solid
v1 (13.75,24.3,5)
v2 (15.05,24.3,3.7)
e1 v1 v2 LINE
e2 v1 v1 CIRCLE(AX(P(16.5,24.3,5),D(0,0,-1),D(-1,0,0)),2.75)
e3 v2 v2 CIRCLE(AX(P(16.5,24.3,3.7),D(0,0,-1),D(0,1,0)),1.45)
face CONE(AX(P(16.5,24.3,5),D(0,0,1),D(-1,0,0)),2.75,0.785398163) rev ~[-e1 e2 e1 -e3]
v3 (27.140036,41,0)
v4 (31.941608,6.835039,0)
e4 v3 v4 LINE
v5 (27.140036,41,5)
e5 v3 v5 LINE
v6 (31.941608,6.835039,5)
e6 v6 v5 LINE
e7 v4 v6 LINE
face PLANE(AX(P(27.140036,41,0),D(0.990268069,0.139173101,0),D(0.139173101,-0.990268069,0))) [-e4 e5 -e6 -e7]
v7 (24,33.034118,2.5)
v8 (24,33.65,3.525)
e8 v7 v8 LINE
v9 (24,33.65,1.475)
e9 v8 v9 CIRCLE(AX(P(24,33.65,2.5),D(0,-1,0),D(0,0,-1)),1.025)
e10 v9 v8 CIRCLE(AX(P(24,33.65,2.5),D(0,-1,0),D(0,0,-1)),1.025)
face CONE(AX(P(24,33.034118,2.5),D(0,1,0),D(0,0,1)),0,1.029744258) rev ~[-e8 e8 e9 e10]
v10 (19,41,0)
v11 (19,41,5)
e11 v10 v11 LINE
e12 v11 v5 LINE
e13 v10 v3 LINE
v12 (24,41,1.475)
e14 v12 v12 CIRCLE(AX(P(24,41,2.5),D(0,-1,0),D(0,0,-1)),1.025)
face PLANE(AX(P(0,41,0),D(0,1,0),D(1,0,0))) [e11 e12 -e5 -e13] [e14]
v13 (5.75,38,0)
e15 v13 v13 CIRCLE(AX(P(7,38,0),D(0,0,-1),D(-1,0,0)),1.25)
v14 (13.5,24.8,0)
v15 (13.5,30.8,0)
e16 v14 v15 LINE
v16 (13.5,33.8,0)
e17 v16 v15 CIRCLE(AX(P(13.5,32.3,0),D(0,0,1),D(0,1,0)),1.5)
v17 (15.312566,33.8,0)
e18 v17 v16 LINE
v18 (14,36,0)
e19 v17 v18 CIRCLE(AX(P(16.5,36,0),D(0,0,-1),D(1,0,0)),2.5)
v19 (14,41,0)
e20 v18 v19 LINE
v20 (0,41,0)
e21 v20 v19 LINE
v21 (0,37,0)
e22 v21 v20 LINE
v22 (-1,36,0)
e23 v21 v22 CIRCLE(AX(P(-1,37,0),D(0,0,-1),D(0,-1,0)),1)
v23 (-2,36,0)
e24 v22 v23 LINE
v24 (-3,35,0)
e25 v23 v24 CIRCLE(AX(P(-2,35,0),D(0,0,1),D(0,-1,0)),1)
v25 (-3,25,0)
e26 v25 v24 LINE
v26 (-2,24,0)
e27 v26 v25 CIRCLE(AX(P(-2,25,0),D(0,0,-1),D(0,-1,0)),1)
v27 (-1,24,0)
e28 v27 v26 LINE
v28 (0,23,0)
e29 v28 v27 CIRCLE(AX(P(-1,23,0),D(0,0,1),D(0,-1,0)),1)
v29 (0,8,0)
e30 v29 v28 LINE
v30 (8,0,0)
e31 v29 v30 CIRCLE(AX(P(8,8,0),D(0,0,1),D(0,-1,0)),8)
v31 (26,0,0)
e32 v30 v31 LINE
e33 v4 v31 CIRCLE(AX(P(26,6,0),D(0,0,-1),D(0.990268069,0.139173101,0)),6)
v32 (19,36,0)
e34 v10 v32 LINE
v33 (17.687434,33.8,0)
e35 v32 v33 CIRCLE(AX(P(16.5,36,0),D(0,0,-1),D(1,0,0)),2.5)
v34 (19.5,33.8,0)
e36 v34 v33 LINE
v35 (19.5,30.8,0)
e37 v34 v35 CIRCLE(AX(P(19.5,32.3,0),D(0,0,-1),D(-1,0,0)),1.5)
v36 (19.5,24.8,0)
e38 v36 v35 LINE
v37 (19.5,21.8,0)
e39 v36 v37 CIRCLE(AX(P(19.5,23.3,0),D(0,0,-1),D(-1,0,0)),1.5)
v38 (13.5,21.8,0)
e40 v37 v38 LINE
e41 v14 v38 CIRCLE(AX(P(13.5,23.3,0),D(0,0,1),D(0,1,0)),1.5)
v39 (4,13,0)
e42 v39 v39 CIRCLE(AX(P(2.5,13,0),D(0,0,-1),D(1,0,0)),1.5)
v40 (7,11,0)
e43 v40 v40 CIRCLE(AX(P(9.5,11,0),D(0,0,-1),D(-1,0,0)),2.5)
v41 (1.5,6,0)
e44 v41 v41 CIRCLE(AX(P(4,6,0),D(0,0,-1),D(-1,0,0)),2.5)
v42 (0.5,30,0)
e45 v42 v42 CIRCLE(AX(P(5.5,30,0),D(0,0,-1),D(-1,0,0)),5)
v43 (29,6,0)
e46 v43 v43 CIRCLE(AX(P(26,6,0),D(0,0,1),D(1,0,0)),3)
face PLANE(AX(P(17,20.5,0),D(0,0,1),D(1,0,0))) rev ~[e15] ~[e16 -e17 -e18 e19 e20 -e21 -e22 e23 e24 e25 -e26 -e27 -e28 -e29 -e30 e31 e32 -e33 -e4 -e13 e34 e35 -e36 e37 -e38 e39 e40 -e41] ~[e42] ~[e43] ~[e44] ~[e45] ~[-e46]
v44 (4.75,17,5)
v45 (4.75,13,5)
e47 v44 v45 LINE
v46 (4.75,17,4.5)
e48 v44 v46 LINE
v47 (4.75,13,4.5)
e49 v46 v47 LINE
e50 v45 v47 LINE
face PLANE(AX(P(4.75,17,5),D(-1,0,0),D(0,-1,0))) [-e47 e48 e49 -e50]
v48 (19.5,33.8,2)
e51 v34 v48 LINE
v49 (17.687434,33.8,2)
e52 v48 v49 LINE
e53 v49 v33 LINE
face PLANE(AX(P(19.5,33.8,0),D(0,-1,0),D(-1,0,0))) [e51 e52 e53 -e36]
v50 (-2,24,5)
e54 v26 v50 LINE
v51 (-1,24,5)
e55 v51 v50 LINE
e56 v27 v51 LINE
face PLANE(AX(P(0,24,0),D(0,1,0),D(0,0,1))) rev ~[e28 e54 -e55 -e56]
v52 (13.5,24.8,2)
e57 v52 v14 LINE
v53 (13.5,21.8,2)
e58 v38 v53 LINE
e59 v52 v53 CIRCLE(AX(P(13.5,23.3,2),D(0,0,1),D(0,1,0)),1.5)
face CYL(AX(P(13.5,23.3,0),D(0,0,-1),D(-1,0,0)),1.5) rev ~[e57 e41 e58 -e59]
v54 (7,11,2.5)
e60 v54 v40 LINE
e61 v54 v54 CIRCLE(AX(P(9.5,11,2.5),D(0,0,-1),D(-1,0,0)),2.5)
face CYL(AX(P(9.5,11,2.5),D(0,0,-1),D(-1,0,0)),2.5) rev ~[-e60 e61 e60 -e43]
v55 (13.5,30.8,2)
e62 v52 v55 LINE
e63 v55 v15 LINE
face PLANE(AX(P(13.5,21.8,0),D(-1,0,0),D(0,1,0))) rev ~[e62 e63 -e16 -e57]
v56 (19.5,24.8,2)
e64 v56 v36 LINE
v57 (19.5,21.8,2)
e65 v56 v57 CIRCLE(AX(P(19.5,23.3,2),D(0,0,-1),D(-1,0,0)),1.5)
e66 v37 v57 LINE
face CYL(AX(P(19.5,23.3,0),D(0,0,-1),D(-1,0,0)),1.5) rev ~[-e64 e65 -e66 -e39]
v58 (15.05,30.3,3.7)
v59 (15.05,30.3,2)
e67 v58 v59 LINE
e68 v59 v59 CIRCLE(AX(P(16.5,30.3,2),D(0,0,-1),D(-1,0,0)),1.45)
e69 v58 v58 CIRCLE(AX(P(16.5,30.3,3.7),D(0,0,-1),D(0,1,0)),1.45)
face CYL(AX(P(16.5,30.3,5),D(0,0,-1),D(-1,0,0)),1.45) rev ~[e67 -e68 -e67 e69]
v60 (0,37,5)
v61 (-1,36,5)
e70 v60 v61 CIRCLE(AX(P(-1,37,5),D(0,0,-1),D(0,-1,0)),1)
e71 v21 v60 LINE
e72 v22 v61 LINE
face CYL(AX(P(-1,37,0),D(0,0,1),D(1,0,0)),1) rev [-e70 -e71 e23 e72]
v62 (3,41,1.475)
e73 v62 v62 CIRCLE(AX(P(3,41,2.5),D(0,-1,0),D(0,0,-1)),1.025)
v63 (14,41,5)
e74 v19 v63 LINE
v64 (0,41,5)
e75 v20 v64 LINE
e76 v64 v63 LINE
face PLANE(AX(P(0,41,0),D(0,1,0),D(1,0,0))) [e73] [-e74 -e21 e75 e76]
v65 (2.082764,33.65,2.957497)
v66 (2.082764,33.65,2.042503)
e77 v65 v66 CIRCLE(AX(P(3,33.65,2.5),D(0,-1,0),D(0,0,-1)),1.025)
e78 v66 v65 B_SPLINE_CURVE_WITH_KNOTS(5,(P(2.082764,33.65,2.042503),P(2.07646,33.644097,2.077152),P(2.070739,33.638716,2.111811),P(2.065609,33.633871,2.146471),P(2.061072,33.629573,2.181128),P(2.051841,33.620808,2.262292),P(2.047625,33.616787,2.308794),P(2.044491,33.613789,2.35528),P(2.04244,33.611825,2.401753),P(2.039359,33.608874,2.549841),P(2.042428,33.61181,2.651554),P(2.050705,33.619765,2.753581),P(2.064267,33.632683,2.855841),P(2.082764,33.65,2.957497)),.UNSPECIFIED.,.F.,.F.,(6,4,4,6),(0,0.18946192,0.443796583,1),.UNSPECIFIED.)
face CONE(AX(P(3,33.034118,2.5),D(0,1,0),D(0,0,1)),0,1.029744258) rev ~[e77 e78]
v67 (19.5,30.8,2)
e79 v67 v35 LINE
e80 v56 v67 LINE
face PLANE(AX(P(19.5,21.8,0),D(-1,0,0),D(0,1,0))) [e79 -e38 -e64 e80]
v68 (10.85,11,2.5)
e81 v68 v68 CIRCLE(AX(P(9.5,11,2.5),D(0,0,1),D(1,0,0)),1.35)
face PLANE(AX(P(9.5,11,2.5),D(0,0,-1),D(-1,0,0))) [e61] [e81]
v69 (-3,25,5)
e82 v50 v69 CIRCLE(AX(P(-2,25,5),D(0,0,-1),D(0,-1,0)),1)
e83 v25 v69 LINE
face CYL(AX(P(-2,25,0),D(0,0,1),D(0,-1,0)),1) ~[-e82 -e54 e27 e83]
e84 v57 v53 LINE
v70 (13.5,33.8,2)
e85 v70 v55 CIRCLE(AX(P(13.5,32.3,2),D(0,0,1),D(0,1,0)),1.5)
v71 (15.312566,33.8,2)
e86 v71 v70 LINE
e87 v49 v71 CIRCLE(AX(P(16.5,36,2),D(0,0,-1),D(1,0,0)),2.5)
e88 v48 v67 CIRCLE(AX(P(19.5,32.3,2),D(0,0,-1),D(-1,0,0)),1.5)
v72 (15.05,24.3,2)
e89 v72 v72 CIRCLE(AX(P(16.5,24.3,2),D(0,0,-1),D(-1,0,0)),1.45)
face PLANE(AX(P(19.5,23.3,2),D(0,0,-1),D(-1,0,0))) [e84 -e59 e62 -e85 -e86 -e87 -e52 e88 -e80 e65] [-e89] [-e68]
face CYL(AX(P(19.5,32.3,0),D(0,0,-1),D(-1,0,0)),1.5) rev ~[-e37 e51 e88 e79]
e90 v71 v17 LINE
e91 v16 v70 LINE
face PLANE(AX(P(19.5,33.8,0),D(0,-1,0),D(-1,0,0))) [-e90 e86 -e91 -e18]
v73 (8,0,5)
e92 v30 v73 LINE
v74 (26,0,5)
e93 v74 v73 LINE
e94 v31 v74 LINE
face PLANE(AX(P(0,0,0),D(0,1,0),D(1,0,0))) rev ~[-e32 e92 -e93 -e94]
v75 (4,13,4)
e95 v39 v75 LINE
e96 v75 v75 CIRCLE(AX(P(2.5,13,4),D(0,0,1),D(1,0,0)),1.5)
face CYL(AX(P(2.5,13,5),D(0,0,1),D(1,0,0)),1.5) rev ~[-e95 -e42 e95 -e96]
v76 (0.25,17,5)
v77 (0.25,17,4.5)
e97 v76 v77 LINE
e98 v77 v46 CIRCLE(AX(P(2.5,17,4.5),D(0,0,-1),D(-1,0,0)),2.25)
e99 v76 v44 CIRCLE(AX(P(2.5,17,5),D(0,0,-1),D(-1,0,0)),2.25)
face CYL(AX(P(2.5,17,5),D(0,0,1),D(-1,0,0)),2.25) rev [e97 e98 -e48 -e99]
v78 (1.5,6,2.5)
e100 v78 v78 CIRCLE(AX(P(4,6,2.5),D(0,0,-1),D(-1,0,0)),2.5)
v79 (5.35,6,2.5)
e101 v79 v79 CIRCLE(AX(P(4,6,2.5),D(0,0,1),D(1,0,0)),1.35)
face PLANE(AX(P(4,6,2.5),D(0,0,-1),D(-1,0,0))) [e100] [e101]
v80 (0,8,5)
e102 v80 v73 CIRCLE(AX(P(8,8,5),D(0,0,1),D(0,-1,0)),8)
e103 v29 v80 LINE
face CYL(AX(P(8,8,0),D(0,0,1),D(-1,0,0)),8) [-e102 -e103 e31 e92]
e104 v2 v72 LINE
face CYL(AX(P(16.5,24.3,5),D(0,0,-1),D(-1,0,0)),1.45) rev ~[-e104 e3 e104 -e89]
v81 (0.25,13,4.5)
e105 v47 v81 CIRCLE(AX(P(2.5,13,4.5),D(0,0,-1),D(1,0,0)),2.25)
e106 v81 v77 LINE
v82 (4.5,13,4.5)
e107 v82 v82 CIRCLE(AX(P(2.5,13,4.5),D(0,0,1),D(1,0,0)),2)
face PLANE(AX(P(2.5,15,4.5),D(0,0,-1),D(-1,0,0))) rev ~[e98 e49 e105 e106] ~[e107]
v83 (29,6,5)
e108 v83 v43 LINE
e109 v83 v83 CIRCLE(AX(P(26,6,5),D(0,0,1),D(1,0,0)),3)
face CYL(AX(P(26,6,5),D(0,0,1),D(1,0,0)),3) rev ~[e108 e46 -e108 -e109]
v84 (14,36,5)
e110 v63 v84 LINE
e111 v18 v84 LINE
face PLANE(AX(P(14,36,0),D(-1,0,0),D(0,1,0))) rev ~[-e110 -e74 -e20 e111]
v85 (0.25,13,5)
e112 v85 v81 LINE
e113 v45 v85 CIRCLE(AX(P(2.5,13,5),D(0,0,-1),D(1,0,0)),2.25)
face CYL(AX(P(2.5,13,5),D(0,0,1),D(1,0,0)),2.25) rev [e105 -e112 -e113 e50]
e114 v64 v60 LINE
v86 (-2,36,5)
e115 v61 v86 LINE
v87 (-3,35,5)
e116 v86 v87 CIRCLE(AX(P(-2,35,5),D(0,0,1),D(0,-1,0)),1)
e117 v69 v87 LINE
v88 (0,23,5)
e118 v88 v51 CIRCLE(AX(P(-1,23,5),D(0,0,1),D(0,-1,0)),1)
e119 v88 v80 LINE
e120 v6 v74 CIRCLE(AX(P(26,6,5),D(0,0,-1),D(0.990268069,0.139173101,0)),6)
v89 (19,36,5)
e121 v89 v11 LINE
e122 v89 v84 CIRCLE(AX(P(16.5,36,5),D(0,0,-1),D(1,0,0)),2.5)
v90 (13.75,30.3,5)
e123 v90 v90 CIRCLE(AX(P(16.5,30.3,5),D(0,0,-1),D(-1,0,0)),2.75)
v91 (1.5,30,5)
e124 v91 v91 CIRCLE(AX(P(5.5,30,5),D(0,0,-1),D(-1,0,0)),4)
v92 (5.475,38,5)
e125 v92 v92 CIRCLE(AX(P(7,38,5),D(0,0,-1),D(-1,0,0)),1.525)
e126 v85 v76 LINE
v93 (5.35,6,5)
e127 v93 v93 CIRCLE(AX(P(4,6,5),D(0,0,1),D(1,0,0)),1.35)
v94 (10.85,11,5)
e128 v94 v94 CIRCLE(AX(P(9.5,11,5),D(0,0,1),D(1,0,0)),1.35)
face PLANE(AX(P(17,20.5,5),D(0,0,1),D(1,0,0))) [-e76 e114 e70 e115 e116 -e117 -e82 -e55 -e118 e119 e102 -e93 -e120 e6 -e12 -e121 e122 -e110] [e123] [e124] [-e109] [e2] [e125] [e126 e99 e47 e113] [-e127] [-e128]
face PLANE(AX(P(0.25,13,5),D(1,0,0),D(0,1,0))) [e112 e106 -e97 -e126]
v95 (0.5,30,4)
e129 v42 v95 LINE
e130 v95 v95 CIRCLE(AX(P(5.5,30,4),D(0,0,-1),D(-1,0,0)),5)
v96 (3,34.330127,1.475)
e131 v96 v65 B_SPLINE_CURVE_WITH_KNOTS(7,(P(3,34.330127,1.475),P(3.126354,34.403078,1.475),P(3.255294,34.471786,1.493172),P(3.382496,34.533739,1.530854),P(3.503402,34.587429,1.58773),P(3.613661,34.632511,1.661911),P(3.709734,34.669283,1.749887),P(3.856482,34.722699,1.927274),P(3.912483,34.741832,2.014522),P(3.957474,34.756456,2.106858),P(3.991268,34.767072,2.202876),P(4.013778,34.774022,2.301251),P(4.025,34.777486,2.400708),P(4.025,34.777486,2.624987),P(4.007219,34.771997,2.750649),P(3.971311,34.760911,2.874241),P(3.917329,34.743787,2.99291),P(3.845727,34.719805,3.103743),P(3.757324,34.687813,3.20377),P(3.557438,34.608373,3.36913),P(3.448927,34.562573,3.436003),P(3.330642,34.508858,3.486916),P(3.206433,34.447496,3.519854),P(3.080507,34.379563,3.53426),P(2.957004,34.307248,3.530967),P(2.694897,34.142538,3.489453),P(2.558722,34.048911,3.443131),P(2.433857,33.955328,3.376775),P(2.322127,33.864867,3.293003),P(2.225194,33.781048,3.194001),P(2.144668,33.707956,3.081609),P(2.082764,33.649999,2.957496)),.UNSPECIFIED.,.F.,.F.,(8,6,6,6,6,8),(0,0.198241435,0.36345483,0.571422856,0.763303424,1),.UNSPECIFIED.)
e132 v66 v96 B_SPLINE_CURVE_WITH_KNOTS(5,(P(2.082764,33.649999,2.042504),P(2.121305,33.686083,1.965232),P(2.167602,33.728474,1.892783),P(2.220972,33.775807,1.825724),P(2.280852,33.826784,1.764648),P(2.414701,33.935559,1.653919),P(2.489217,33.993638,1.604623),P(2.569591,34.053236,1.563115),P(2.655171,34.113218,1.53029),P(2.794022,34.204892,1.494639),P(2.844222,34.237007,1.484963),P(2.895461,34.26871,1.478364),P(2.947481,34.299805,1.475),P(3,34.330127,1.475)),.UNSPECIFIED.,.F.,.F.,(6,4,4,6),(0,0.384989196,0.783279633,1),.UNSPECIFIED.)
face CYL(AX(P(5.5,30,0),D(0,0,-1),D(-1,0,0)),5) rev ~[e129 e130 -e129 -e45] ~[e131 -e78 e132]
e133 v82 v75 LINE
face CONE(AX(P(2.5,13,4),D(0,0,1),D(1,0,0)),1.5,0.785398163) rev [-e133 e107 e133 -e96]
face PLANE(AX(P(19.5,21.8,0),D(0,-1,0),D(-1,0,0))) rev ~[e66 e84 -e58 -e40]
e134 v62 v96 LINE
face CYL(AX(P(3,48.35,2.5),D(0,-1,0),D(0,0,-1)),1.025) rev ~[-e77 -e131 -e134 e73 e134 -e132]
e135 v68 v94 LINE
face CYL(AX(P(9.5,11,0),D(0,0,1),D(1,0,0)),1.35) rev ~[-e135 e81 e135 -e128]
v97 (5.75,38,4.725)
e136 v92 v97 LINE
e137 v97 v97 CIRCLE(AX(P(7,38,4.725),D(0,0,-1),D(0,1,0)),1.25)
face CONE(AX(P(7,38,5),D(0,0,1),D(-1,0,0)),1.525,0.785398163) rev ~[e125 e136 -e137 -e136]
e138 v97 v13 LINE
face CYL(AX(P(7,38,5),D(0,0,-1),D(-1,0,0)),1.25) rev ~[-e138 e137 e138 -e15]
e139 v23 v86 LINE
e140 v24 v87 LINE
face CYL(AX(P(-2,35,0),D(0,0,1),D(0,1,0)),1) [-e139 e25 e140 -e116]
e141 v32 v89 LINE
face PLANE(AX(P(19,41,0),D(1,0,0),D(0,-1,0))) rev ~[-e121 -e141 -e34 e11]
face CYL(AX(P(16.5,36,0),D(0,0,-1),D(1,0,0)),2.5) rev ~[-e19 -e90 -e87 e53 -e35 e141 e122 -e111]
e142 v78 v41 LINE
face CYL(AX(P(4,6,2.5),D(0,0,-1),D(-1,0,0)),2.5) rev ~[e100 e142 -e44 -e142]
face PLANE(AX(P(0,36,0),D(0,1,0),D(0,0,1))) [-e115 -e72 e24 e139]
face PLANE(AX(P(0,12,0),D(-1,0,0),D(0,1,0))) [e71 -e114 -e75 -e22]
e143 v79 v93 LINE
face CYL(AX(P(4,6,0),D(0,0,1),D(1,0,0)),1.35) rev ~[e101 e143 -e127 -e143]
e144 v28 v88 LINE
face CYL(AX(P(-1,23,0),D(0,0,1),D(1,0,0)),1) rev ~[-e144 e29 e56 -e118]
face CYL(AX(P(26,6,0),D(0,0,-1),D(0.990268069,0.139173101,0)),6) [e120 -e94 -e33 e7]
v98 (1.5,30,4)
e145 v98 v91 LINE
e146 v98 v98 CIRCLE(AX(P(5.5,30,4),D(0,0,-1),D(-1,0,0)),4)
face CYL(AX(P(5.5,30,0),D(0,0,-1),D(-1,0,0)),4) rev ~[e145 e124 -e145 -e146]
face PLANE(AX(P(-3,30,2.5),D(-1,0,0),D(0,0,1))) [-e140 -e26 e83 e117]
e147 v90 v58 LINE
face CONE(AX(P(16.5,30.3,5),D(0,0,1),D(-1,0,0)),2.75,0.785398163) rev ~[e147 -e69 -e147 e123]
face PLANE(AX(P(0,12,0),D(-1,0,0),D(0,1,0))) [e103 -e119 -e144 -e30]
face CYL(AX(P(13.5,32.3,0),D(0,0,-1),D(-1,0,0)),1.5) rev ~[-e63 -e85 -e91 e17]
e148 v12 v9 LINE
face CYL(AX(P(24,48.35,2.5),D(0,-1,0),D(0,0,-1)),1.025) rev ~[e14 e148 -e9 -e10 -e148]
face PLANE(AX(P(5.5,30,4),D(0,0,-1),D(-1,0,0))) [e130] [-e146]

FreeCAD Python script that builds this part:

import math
import FreeCAD as App
import Part
import Sketcher

V = App.Vector
Q = App.Units.Quantity


def edges_at(feature, points):
    """Names of the edges that pass closest to the given points."""
    edges = feature.Shape.Edges
    near = lambda p: min(range(len(edges)), key=lambda i: edges[i].distToShape(Part.Vertex(*p))[0])
    return sorted({f"Edge{near(p) + 1}" for p in points})


def add_polygon(sketch, points):
    """Adds a closed chain of lines whose ends are joined by coincident constraints."""
    first, n = sketch.GeometryCount, len(points)
    for a, b in zip(points, points[1:] + points[:1]):
        sketch.addGeometry(Part.LineSegment(App.Vector(*a, 0), App.Vector(*b, 0)), False)
    for i in range(n):
        sketch.addConstraint(Sketcher.Constraint("Coincident", first + i, 2, first + (i + 1) % n, 1))

doc = App.newDocument("Part")
params = doc.addObject("Spreadsheet::Sheet", "Params")
for row, (alias, value) in enumerate([
    ("sketch1_width", "34 mm"),
    ("sketch1_height", "41 mm"),
    ("pad1_length", "5 mm"),
    ("fillet_radius", "8 mm"),
    ("sketch2_diameter", "6 mm"),
    ("pocket1_length", "5 mm"),
    ("sketch3_diameter", "8 mm"),
    ("pocket2_length", "5 mm"),
    ("sketch4_diameter", "10 mm"),
    ("pocket3_length", "4 mm"),
    ("sketch5_diameter", "2.05 mm"),
    ("hole_diameter", "2.05 mm"),
    ("hole_depth", "7.35 mm"),
    ("sketch6_radius", "6 mm"),
    ("sketch6_width", "8 mm"),
    ("sketch6_height", "41 mm"),
    ("pocket4_length", "10 mm"),
    ("sketch7_radius", "6 mm"),
    ("sketch7_radius2", "12 mm"),
    ("sketch7_width", "14 mm"),
    ("pad2_length", "5 mm"),
    ("sketch8_diameter", "3 mm"),
    ("pocket5_length", "4.5 mm"),
    ("sketch9_diameter", "1 mm"),
    ("sketch10_height", "4 mm"),
    ("sketch10_radius", "2.25 mm"),
    ("pocket7_length", "0.5 mm"),
    ("chamfer_size", "0.5 mm"),
    ("sketch11_width", "6 mm"),
    ("sketch11_height", "12 mm"),
    ("pocket8_length", "2 mm"),
    ("sketch12_diameter", "3 mm"),
    ("pocket9_length", "2 mm"),
    ("sketch13_radius", "2.5 mm"),
    ("sketch14_diameter", "3 mm"),
    ("pocket11_length", "10 mm"),
    ("sketch15_diameter", "2.7 mm"),
    ("hole2_diameter", "2.7 mm"),
    ("hole2_cbore_diameter", "5 mm"),
    ("hole2_cbore_depth", "2.5 mm"),
    ("sketch16_diameter", "2.9 mm"),
    ("hole3_diameter", "2.9 mm"),
    ("hole3_csink_diameter", "5.5 mm"),
    ("sketch17_width", "12 mm"),
    ("sketch17_height", "5 mm"),
    ("pad3_length", "3 mm"),
    ("fillet2_radius", "1 mm"),
    ("sketch18_diameter", "2.5 mm"),
    ("hole4_diameter", "2.5 mm"),
    ("hole4_csink_diameter", "3.05 mm"),
], start=1):
    params.set(f"A{row}", alias)
    params.set(f"B{row}", "=" + value)
    params.setAlias(f"B{row}", alias)

body = doc.addObject("PartDesign::Body", "Body")

# Sketch on XY plane
sketch1 = body.newObject("Sketcher::SketchObject", "Sketch")
sketch1.AttachmentSupport = (doc.getObject("XY_Plane"), [""])
sketch1.MapMode = "FlatFace"
add_polygon(sketch1, [(0, 41), (0, 0), (34, 0), (34, 41)])  # lines 0-3
sketch1.addConstraint(Sketcher.Constraint("Vertical", 0))
sketch1.addConstraint(Sketcher.Constraint("Horizontal", 1))
sketch1.addConstraint(Sketcher.Constraint("Vertical", 2))
sketch1.addConstraint(Sketcher.Constraint("Horizontal", 3))
sketch1.addConstraint(Sketcher.Constraint("Coincident", 0, 2, -1, 1))
sketch1.addConstraint(Sketcher.Constraint("DistanceX", 1, 1, 1, 2, Q("34 mm")))
sketch1.addConstraint(Sketcher.Constraint("DistanceY", 0, 2, 0, 1, Q("41 mm")))
sketch1.setExpression("Constraints[9]", "Params.sketch1_width")
sketch1.setExpression("Constraints[10]", "Params.sketch1_height")
pad1 = body.newObject("PartDesign::Pad", "Pad")
pad1.Profile = sketch1
pad1.setExpression("Length", "Params.pad1_length")
doc.recompute()

fillet = body.newObject("PartDesign::Fillet", "Fillet")
fillet.Base = (pad1, edges_at(pad1, [(0, 0, 2.5)]))
fillet.setExpression("Radius", "Params.fillet_radius")

# Sketch on XY plane
sketch2 = body.newObject("Sketcher::SketchObject", "Sketch001")
sketch2.AttachmentSupport = (doc.getObject("XY_Plane"), [""])
sketch2.MapMode = "FlatFace"
sketch2.AttachmentOffset = App.Placement(V(0, 0, 5), App.Rotation())
sketch2.addGeometry(Part.Circle(V(26, 6, 0), V(0, 0, 1), 3), False)
sketch2.addConstraint(Sketcher.Constraint("Diameter", 0, Q("6 mm")))
sketch2.addConstraint(Sketcher.Constraint("DistanceX", -1, 1, 0, 3, Q("26 mm")))
sketch2.addConstraint(Sketcher.Constraint("DistanceY", -1, 1, 0, 3, Q("6 mm")))
sketch2.setExpression("Constraints[0]", "Params.sketch2_diameter")
pocket1 = body.newObject("PartDesign::Pocket", "Pocket")
pocket1.Profile = sketch2
pocket1.setExpression("Length", "Params.pocket1_length")

# Sketch on XY plane
sketch3 = body.newObject("Sketcher::SketchObject", "Sketch002")
sketch3.AttachmentSupport = (doc.getObject("XY_Plane"), [""])
sketch3.MapMode = "FlatFace"
sketch3.addGeometry(Part.Circle(V(5.5, 30, 0), V(0, 0, 1), 4), False)
sketch3.addConstraint(Sketcher.Constraint("Diameter", 0, Q("8 mm")))
sketch3.addConstraint(Sketcher.Constraint("DistanceY", -1, 1, 0, 3, Q("30 mm")))
sketch3.addConstraint(Sketcher.Constraint("DistanceX", -1, 1, 0, 3, Q("5.5 mm")))
sketch3.setExpression("Constraints[0]", "Params.sketch3_diameter")
pocket2 = body.newObject("PartDesign::Pocket", "Pocket001")
pocket2.Profile = sketch3
pocket2.setExpression("Length", "Params.pocket2_length")
pocket2.Reversed = True

# Sketch on XY plane
sketch4 = body.newObject("Sketcher::SketchObject", "Sketch003")
sketch4.AttachmentSupport = (doc.getObject("XY_Plane"), [""])
sketch4.MapMode = "FlatFace"
sketch4.addGeometry(Part.Circle(V(6, 30, 0), V(0, 0, 1), 5), False)
sketch4.addConstraint(Sketcher.Constraint("Diameter", 0, Q("10 mm")))
sketch4.addConstraint(Sketcher.Constraint("DistanceY", -1, 1, 0, 3, Q("30 mm")))
sketch4.addConstraint(Sketcher.Constraint("DistanceX", -1, 1, 0, 3, Q("5.5 mm")))
sketch4.setExpression("Constraints[0]", "Params.sketch4_diameter")
pocket3 = body.newObject("PartDesign::Pocket", "Pocket002")
pocket3.Profile = sketch4
pocket3.setExpression("Length", "Params.pocket3_length")
pocket3.Reversed = True

# Sketch on XZ plane
sketch5 = body.newObject("Sketcher::SketchObject", "Sketch004")
sketch5.AttachmentSupport = (doc.getObject("XZ_Plane"), [""])
sketch5.MapMode = "FlatFace"
sketch5.AttachmentOffset = App.Placement(V(0, 0, -41), App.Rotation())
sketch5.addGeometry(Part.Circle(V(3, 2.5, 0), V(0, 0, 1), 1), False)
sketch5.addGeometry(Part.Circle(V(24, 2.5, 0), V(0, 0, 1), 1), False)
sketch5.addConstraint(Sketcher.Constraint("Equal", 0, 1))
sketch5.addConstraint(Sketcher.Constraint("Horizontal", 0, 3, 1, 3))
sketch5.addConstraint(Sketcher.Constraint("Diameter", 0, Q("2.05 mm")))
sketch5.addConstraint(Sketcher.Constraint("DistanceX", -1, 1, 0, 3, Q("3 mm")))
sketch5.addConstraint(Sketcher.Constraint("DistanceX", -1, 1, 1, 3, Q("24 mm")))
sketch5.addConstraint(Sketcher.Constraint("DistanceY", -1, 1, 0, 3, Q("2.5 mm")))
sketch5.setExpression("Constraints[2]", "Params.sketch5_diameter")
doc.recompute()
hole = body.newObject("PartDesign::Hole", "Hole")
hole.Profile = sketch5
hole.ThreadType = "None"
hole.setExpression("Diameter", "Params.hole_diameter")
hole.DepthType = "Dimension"
hole.setExpression("Depth", "Params.hole_depth")
hole.DrillPoint = "Angled"
hole.DrillPointAngle = 118
hole.Reversed = True

# Sketch on XY plane
sketch6 = body.newObject("Sketcher::SketchObject", "Sketch005")
sketch6.AttachmentSupport = (doc.getObject("XY_Plane"), [""])
sketch6.MapMode = "FlatFace"
sketch6.addGeometry(Part.LineSegment(V(34, 0, 0), V(26, 0, 0)), False)
sketch6.addGeometry(Part.ArcOfCircle(Part.Circle(V(26, 6, 0), V(0, 0, 1), 6), math.radians(-90), math.radians(8)), False)
sketch6.addGeometry(Part.LineSegment(V(32, 7, 0), V(27, 41, 0)), False)
sketch6.addGeometry(Part.LineSegment(V(27, 41, 0), V(34, 41, 0)), False)
sketch6.addGeometry(Part.LineSegment(V(34, 41, 0), V(34, 0, 0)), False)
sketch6.addConstraint(Sketcher.Constraint("Tangent", 0, 2, 1, 1))
sketch6.addConstraint(Sketcher.Constraint("Tangent", 1, 2, 2, 1))
sketch6.addConstraint(Sketcher.Constraint("Coincident", 2, 2, 3, 1))
sketch6.addConstraint(Sketcher.Constraint("Coincident", 3, 2, 4, 1))
sketch6.addConstraint(Sketcher.Constraint("Coincident", 4, 2, 0, 1))
sketch6.addConstraint(Sketcher.Constraint("Horizontal", 0))
sketch6.addConstraint(Sketcher.Constraint("Horizontal", 3))
sketch6.addConstraint(Sketcher.Constraint("Vertical", 4))
sketch6.addConstraint(Sketcher.Constraint("PointOnObject", 0, 2, -1))
sketch6.addConstraint(Sketcher.Constraint("Radius", 1, Q("6 mm")))
sketch6.addConstraint(Sketcher.Constraint("DistanceX", 0, 2, 0, 1, Q("8 mm")))
sketch6.addConstraint(Sketcher.Constraint("DistanceY", 4, 2, 4, 1, Q("41 mm")))
sketch6.addConstraint(Sketcher.Constraint("Angle", 2, Q("98 deg")))
sketch6.addConstraint(Sketcher.Constraint("DistanceX", -1, 1, 1, 3, Q("26 mm")))
sketch6.setExpression("Constraints[9]", "Params.sketch6_radius")
sketch6.setExpression("Constraints[10]", "Params.sketch6_width")
sketch6.setExpression("Constraints[11]", "Params.sketch6_height")
pocket4 = body.newObject("PartDesign::Pocket", "Pocket003")
pocket4.Profile = sketch6
pocket4.setExpression("Length", "Params.pocket4_length")
pocket4.Reversed = True

# Sketch on XY plane
sketch7 = body.newObject("Sketcher::SketchObject", "Sketch006")
sketch7.AttachmentSupport = (doc.getObject("XY_Plane"), [""])
sketch7.MapMode = "FlatFace"
sketch7.addGeometry(Part.LineSegment(V(12, 0, 0), V(26, 0, 0)), False)
sketch7.addGeometry(Part.ArcOfCircle(Part.Circle(V(26, 6, 0), V(0, 0, 1), 6), math.radians(-90), math.radians(-55)), False)
sketch7.addGeometry(Part.LineSegment(V(29.4, 1.1, 0), V(0, 13, 0)), False)
sketch7.addGeometry(Part.LineSegment(V(0, 13, 0), V(0, 12, 0)), False)
sketch7.addGeometry(Part.ArcOfCircle(Part.Circle(V(12, 12, 0), V(0, 0, 1), 12), math.radians(-180), math.radians(-90)), False)
sketch7.addConstraint(Sketcher.Constraint("Tangent", 0, 2, 1, 1))
sketch7.addConstraint(Sketcher.Constraint("Coincident", 1, 2, 2, 1))
sketch7.addConstraint(Sketcher.Constraint("Coincident", 2, 2, 3, 1))
sketch7.addConstraint(Sketcher.Constraint("Tangent", 3, 2, 4, 1))
sketch7.addConstraint(Sketcher.Constraint("Tangent", 4, 2, 0, 1))
sketch7.addConstraint(Sketcher.Constraint("Horizontal", 0))
sketch7.addConstraint(Sketcher.Constraint("Vertical", 3))
sketch7.addConstraint(Sketcher.Constraint("PointOnObject", 0, 2, -1))
sketch7.addConstraint(Sketcher.Constraint("PointOnObject", 2, 2, -2))
sketch7.addConstraint(Sketcher.Constraint("Radius", 1, Q("6 mm")))
sketch7.addConstraint(Sketcher.Constraint("Radius", 4, Q("12 mm")))
sketch7.addConstraint(Sketcher.Constraint("DistanceX", 0, 1, 0, 2, Q("14 mm")))
sketch7.addConstraint(Sketcher.Constraint("Angle", 2, Q("158 deg")))
sketch7.addConstraint(Sketcher.Constraint("DistanceY", 3, 2, 3, 1, Q("0.980209 mm")))
sketch7.setExpression("Constraints[9]", "Params.sketch7_radius")
sketch7.setExpression("Constraints[10]", "Params.sketch7_radius2")
sketch7.setExpression("Constraints[11]", "Params.sketch7_width")
pad2 = body.newObject("PartDesign::Pad", "Pad001")
pad2.Profile = sketch7
pad2.setExpression("Length", "Params.pad2_length")

# Sketch on XY plane
sketch8 = body.newObject("Sketcher::SketchObject", "Sketch007")
sketch8.AttachmentSupport = (doc.getObject("XY_Plane"), [""])
sketch8.MapMode = "FlatFace"
sketch8.AttachmentOffset = App.Placement(V(0, 0, 5), App.Rotation())
sketch8.addGeometry(Part.Circle(V(2.5, 13, 0), V(0, 0, 1), 1.5), False)
sketch8.addConstraint(Sketcher.Constraint("Diameter", 0, Q("3 mm")))
sketch8.addConstraint(Sketcher.Constraint("DistanceY", -1, 1, 0, 3, Q("13 mm")))
sketch8.addConstraint(Sketcher.Constraint("DistanceX", -1, 1, 0, 3, Q("2.5 mm")))
sketch8.setExpression("Constraints[0]", "Params.sketch8_diameter")
pocket5 = body.newObject("PartDesign::Pocket", "Pocket004")
pocket5.Profile = sketch8
pocket5.setExpression("Length", "Params.pocket5_length")

# Sketch on XY plane
sketch9 = body.newObject("Sketcher::SketchObject", "Sketch008")
sketch9.AttachmentSupport = (doc.getObject("XY_Plane"), [""])
sketch9.MapMode = "FlatFace"
sketch9.AttachmentOffset = App.Placement(V(0, 0, 0.5), App.Rotation())
sketch9.addGeometry(Part.Circle(V(1.5, 13, 0), V(0, 0, 1), 0.5), False)
sketch9.addConstraint(Sketcher.Constraint("Diameter", 0, Q("1 mm")))
sketch9.addConstraint(Sketcher.Constraint("DistanceY", -1, 1, 0, 3, Q("13 mm")))
sketch9.addConstraint(Sketcher.Constraint("DistanceX", -1, 1, 0, 3, Q("1.5 mm")))
sketch9.setExpression("Constraints[0]", "Params.sketch9_diameter")
pocket6 = body.newObject("PartDesign::Pocket", "Pocket005")
pocket6.Profile = sketch9
pocket6.Type = "ThroughAll"

# Sketch on XY plane
sketch10 = body.newObject("Sketcher::SketchObject", "Sketch009")
sketch10.AttachmentSupport = (doc.getObject("XY_Plane"), [""])
sketch10.MapMode = "FlatFace"
sketch10.AttachmentOffset = App.Placement(V(0, 0, 5), App.Rotation())
sketch10.addGeometry(Part.LineSegment(V(0.2, 17, 0), V(0.2, 13, 0)), False)
sketch10.addGeometry(Part.ArcOfCircle(Part.Circle(V(2.5, 13, 0), V(0, 0, 1), 2.2), math.radians(180), math.radians(360)), False)
sketch10.addGeometry(Part.LineSegment(V(4.8, 13, 0), V(4.8, 17, 0)), False)
sketch10.addGeometry(Part.ArcOfCircle(Part.Circle(V(2.5, 17, 0), V(0, 0, 1), 2.2), math.radians(0), math.radians(180)), False)
sketch10.addConstraint(Sketcher.Constraint("Tangent", 0, 2, 1, 1))
sketch10.addConstraint(Sketcher.Constraint("Tangent", 1, 2, 2, 1))
sketch10.addConstraint(Sketcher.Constraint("Tangent", 2, 2, 3, 1))
sketch10.addConstraint(Sketcher.Constraint("Tangent", 3, 2, 0, 1))
sketch10.addConstraint(Sketcher.Constraint("Vertical", 0))
sketch10.addConstraint(Sketcher.Constraint("Vertical", 2))
sketch10.addConstraint(Sketcher.Constraint("DistanceY", 0, 2, 0, 1, Q("4 mm")))
sketch10.addConstraint(Sketcher.Constraint("Radius", 1, Q("2.25 mm")))
sketch10.addConstraint(Sketcher.Constraint("DistanceY", -1, 1, 1, 3, Q("13 mm")))
sketch10.addConstraint(Sketcher.Constraint("DistanceX", -1, 1, 1, 3, Q("2.5 mm")))
sketch10.setExpression("Constraints[6]", "Params.sketch10_height")
sketch10.setExpression("Constraints[7]", "Params.sketch10_radius")
pocket7 = body.newObject("PartDesign::Pocket", "Pocket006")
pocket7.Profile = sketch10
pocket7.setExpression("Length", "Params.pocket7_length")
doc.recompute()

chamfer = body.newObject("PartDesign::Chamfer", "Chamfer")
chamfer.Base = (pocket7, edges_at(pocket7, [(1, 13, 4.5)]))
chamfer.setExpression("Size", "Params.chamfer_size")

# Sketch on XY plane
sketch11 = body.newObject("Sketcher::SketchObject", "Sketch010")
sketch11.AttachmentSupport = (doc.getObject("XY_Plane"), [""])
sketch11.MapMode = "FlatFace"
add_polygon(sketch11, [(20, 34), (20, 22), (14, 22), (14, 34)])  # lines 0-3
sketch11.addConstraint(Sketcher.Constraint("Vertical", 0))
sketch11.addConstraint(Sketcher.Constraint("Horizontal", 1))
sketch11.addConstraint(Sketcher.Constraint("Vertical", 2))
sketch11.addConstraint(Sketcher.Constraint("Horizontal", 3))
sketch11.addConstraint(Sketcher.Constraint("DistanceX", 1, 2, 1, 1, Q("6 mm")))
sketch11.addConstraint(Sketcher.Constraint("DistanceY", 0, 2, 0, 1, Q("12 mm")))
sketch11.addConstraint(Sketcher.Constraint("DistanceX", -1, 1, 0, 2, Q("19.5 mm")))
sketch11.addConstraint(Sketcher.Constraint("DistanceY", -1, 1, 0, 2, Q("21.8 mm")))
sketch11.setExpression("Constraints[8]", "Params.sketch11_width")
sketch11.setExpression("Constraints[9]", "Params.sketch11_height")
pocket8 = body.newObject("PartDesign::Pocket", "Pocket007")
pocket8.Profile = sketch11
pocket8.setExpression("Length", "Params.pocket8_length")
pocket8.Reversed = True

# Sketch on XY plane
sketch12 = body.newObject("Sketcher::SketchObject", "Sketch011")
sketch12.AttachmentSupport = (doc.getObject("XY_Plane"), [""])
sketch12.MapMode = "FlatFace"
sketch12.addGeometry(Part.Circle(V(19.5, 32.3, 0), V(0, 0, 1), 1.5), False)
sketch12.addGeometry(Part.Circle(V(13.5, 32.3, 0), V(0, 0, 1), 1.5), False)
sketch12.addGeometry(Part.Circle(V(19.5, 23.3, 0), V(0, 0, 1), 1.5), False)
sketch12.addGeometry(Part.Circle(V(13.5, 23.3, 0), V(0, 0, 1), 1.5), False)
sketch12.addConstraint(Sketcher.Constraint("Equal", 0, 1))
sketch12.addConstraint(Sketcher.Constraint("Equal", 1, 2))
sketch12.addConstraint(Sketcher.Constraint("Equal", 2, 3))
sketch12.addConstraint(Sketcher.Constraint("Horizontal", 0, 3, 1, 3))
sketch12.addConstraint(Sketcher.Constraint("Horizontal", 2, 3, 3, 3))
sketch12.addConstraint(Sketcher.Constraint("Vertical", 0, 3, 2, 3))
sketch12.addConstraint(Sketcher.Constraint("Vertical", 1, 3, 3, 3))
sketch12.addConstraint(Sketcher.Constraint("Diameter", 0, Q("3 mm")))
sketch12.addConstraint(Sketcher.Constraint("DistanceX", 1, 3, 0, 3, Q("6 mm")))
sketch12.addConstraint(Sketcher.Constraint("DistanceY", 2, 3, 0, 3, Q("9 mm")))
sketch12.addConstraint(Sketcher.Constraint("DistanceX", -1, 1, 0, 3, Q("19.5 mm")))
sketch12.addConstraint(Sketcher.Constraint("DistanceY", -1, 1, 0, 3, Q("32.3 mm")))
sketch12.setExpression("Constraints[7]", "Params.sketch12_diameter")
pocket9 = body.newObject("PartDesign::Pocket", "Pocket008")
pocket9.Profile = sketch12
pocket9.setExpression("Length", "Params.pocket9_length")
pocket9.Reversed = True

# Sketch on XY plane
sketch13 = body.newObject("Sketcher::SketchObject", "Sketch012")
sketch13.AttachmentSupport = (doc.getObject("XY_Plane"), [""])
sketch13.MapMode = "FlatFace"
sketch13.addGeometry(Part.LineSegment(V(14, 36, 0), V(14, 41, 0)), False)
sketch13.addGeometry(Part.LineSegment(V(14, 41, 0), V(19, 41, 0)), False)
sketch13.addGeometry(Part.LineSegment(V(19, 41, 0), V(19, 36, 0)), False)
sketch13.addGeometry(Part.ArcOfCircle(Part.Circle(V(16.5, 36, 0), V(0, 0, 1), 2.5), math.radians(180), math.radians(360)), False)
sketch13.addConstraint(Sketcher.Constraint("Coincident", 0, 2, 1, 1))
sketch13.addConstraint(Sketcher.Constraint("Coincident", 1, 2, 2, 1))
sketch13.addConstraint(Sketcher.Constraint("Tangent", 2, 2, 3, 2))
sketch13.addConstraint(Sketcher.Constraint("Tangent", 3, 1, 0, 1))
sketch13.addConstraint(Sketcher.Constraint("Vertical", 0))
sketch13.addConstraint(Sketcher.Constraint("Horizontal", 1))
sketch13.addConstraint(Sketcher.Constraint("Vertical", 2))
sketch13.addConstraint(Sketcher.Constraint("Equal", 1, 0))
sketch13.addConstraint(Sketcher.Constraint("Radius", 3, Q("2.5 mm")))
sketch13.addConstraint(Sketcher.Constraint("DistanceY", -1, 1, 3, 3, Q("36 mm")))
sketch13.addConstraint(Sketcher.Constraint("DistanceX", -1, 1, 0, 2, Q("14 mm")))
sketch13.setExpression("Constraints[8]", "Params.sketch13_radius")
pocket10 = body.newObject("PartDesign::Pocket", "Pocket009")
pocket10.Profile = sketch13
pocket10.Type = "ThroughAll"
pocket10.Reversed = True

# Sketch on XY plane
sketch14 = body.newObject("Sketcher::SketchObject", "Sketch013")
sketch14.AttachmentSupport = (doc.getObject("XY_Plane"), [""])
sketch14.MapMode = "FlatFace"
sketch14.AttachmentOffset = App.Placement(V(0, 0, 4.5), App.Rotation())
sketch14.addGeometry(Part.Circle(V(2.5, 13, 0), V(0, 0, 1), 1.5), False)
sketch14.addConstraint(Sketcher.Constraint("Diameter", 0, Q("3 mm")))
sketch14.addConstraint(Sketcher.Constraint("DistanceY", -1, 1, 0, 3, Q("13 mm")))
sketch14.addConstraint(Sketcher.Constraint("DistanceX", -1, 1, 0, 3, Q("2.5 mm")))
sketch14.setExpression("Constraints[0]", "Params.sketch14_diameter")
pocket11 = body.newObject("PartDesign::Pocket", "Pocket010")
pocket11.Profile = sketch14
pocket11.setExpression("Length", "Params.pocket11_length")

# Sketch on XY plane
sketch15 = body.newObject("Sketcher::SketchObject", "Sketch014")
sketch15.AttachmentSupport = (doc.getObject("XY_Plane"), [""])
sketch15.MapMode = "FlatFace"
sketch15.addGeometry(Part.Circle(V(4, 6, 0), V(0, 0, 1), 1.4), False)
sketch15.addGeometry(Part.Circle(V(9.5, 11, 0), V(0, 0, 1), 1.4), False)
sketch15.addConstraint(Sketcher.Constraint("Equal", 0, 1))
sketch15.addConstraint(Sketcher.Constraint("Diameter", 0, Q("2.7 mm")))
sketch15.addConstraint(Sketcher.Constraint("DistanceX", -1, 1, 0, 3, Q("4 mm")))
sketch15.addConstraint(Sketcher.Constraint("DistanceY", -1, 1, 0, 3, Q("6 mm")))
sketch15.addConstraint(Sketcher.Constraint("DistanceY", -1, 1, 1, 3, Q("11 mm")))
sketch15.addConstraint(Sketcher.Constraint("DistanceX", -1, 1, 1, 3, Q("9.5 mm")))
sketch15.setExpression("Constraints[1]", "Params.sketch15_diameter")
doc.recompute()
hole2 = body.newObject("PartDesign::Hole", "Hole001")
hole2.Profile = sketch15
hole2.ThreadType = "None"
hole2.setExpression("Diameter", "Params.hole2_diameter")
hole2.DepthType = "ThroughAll"
hole2.HoleCutType = "Counterbore"
hole2.setExpression("HoleCutDiameter", "Params.hole2_cbore_diameter")
hole2.setExpression("HoleCutDepth", "Params.hole2_cbore_depth")
hole2.Reversed = True

# Sketch on XY plane
sketch16 = body.newObject("Sketcher::SketchObject", "Sketch015")
sketch16.AttachmentSupport = (doc.getObject("XY_Plane"), [""])
sketch16.MapMode = "FlatFace"
sketch16.AttachmentOffset = App.Placement(V(0, 0, 5), App.Rotation())
sketch16.addGeometry(Part.Circle(V(16.5, 30.3, 0), V(0, 0, 1), 1.4), False)
sketch16.addGeometry(Part.Circle(V(16.5, 24.3, 0), V(0, 0, 1), 1.4), False)
sketch16.addConstraint(Sketcher.Constraint("Equal", 0, 1))
sketch16.addConstraint(Sketcher.Constraint("Vertical", 0, 3, 1, 3))
sketch16.addConstraint(Sketcher.Constraint("Diameter", 0, Q("2.9 mm")))
sketch16.addConstraint(Sketcher.Constraint("DistanceY", 1, 3, 0, 3, Q("6 mm")))
sketch16.addConstraint(Sketcher.Constraint("DistanceX", -1, 1, 0, 3, Q("16.5 mm")))
sketch16.addConstraint(Sketcher.Constraint("DistanceY", -1, 1, 0, 3, Q("30.3 mm")))
sketch16.setExpression("Constraints[2]", "Params.sketch16_diameter")
doc.recompute()
hole3 = body.newObject("PartDesign::Hole", "Hole002")
hole3.Profile = sketch16
hole3.ThreadType = "None"
hole3.setExpression("Diameter", "Params.hole3_diameter")
hole3.DepthType = "ThroughAll"
hole3.HoleCutType = "Countersink"
hole3.setExpression("HoleCutDiameter", "Params.hole3_csink_diameter")
hole3.HoleCutCountersinkAngle = 90

# Sketch on YZ plane
sketch17 = body.newObject("Sketcher::SketchObject", "Sketch016")
sketch17.AttachmentSupport = (doc.getObject("YZ_Plane"), [""])
sketch17.MapMode = "FlatFace"
add_polygon(sketch17, [(36, 0), (24, 0), (24, 5), (36, 5)])  # lines 0-3
sketch17.addConstraint(Sketcher.Constraint("Horizontal", 0))
sketch17.addConstraint(Sketcher.Constraint("Vertical", 1))
sketch17.addConstraint(Sketcher.Constraint("Horizontal", 2))
sketch17.addConstraint(Sketcher.Constraint("Vertical", 3))
sketch17.addConstraint(Sketcher.Constraint("PointOnObject", 0, 2, -1))
sketch17.addConstraint(Sketcher.Constraint("DistanceX", 0, 2, 0, 1, Q("12 mm")))
sketch17.addConstraint(Sketcher.Constraint("DistanceY", 1, 1, 1, 2, Q("5 mm")))
sketch17.addConstraint(Sketcher.Constraint("DistanceX", -1, 1, 0, 2, Q("24 mm")))
sketch17.setExpression("Constraints[9]", "Params.sketch17_width")
sketch17.setExpression("Constraints[10]", "Params.sketch17_height")
pad3 = body.newObject("PartDesign::Pad", "Pad002")
pad3.Profile = sketch17
pad3.setExpression("Length", "Params.pad3_length")
pad3.Reversed = True
doc.recompute()

fillet2 = body.newObject("PartDesign::Fillet", "Fillet001")
fillet2.Base = (pad3, edges_at(pad3, [
    (0, 24, 2.5),
    (-3, 36, 2.5),
    (-3, 24, 2.5),
    (0, 36, 2.5),
]))
fillet2.setExpression("Radius", "Params.fillet2_radius")

# Sketch on XY plane
sketch18 = body.newObject("Sketcher::SketchObject", "Sketch017")
sketch18.AttachmentSupport = (doc.getObject("XY_Plane"), [""])
sketch18.MapMode = "FlatFace"
sketch18.AttachmentOffset = App.Placement(V(0, 0, 5), App.Rotation())
sketch18.addGeometry(Part.Circle(V(7, 38, 0), V(0, 0, 1), 1.2), False)
sketch18.addConstraint(Sketcher.Constraint("Diameter", 0, Q("2.5 mm")))
sketch18.addConstraint(Sketcher.Constraint("DistanceX", -1, 1, 0, 3, Q("7 mm")))
sketch18.addConstraint(Sketcher.Constraint("DistanceY", -1, 1, 0, 3, Q("38 mm")))
sketch18.setExpression("Constraints[0]", "Params.sketch18_diameter")
doc.recompute()
hole4 = body.newObject("PartDesign::Hole", "Hole003")
hole4.Profile = sketch18
hole4.ThreadType = "None"
hole4.setExpression("Diameter", "Params.hole4_diameter")
hole4.DepthType = "ThroughAll"
hole4.HoleCutType = "Countersink"
hole4.setExpression("HoleCutDiameter", "Params.hole4_csink_diameter")
hole4.HoleCutCountersinkAngle = 90

doc.recompute()
